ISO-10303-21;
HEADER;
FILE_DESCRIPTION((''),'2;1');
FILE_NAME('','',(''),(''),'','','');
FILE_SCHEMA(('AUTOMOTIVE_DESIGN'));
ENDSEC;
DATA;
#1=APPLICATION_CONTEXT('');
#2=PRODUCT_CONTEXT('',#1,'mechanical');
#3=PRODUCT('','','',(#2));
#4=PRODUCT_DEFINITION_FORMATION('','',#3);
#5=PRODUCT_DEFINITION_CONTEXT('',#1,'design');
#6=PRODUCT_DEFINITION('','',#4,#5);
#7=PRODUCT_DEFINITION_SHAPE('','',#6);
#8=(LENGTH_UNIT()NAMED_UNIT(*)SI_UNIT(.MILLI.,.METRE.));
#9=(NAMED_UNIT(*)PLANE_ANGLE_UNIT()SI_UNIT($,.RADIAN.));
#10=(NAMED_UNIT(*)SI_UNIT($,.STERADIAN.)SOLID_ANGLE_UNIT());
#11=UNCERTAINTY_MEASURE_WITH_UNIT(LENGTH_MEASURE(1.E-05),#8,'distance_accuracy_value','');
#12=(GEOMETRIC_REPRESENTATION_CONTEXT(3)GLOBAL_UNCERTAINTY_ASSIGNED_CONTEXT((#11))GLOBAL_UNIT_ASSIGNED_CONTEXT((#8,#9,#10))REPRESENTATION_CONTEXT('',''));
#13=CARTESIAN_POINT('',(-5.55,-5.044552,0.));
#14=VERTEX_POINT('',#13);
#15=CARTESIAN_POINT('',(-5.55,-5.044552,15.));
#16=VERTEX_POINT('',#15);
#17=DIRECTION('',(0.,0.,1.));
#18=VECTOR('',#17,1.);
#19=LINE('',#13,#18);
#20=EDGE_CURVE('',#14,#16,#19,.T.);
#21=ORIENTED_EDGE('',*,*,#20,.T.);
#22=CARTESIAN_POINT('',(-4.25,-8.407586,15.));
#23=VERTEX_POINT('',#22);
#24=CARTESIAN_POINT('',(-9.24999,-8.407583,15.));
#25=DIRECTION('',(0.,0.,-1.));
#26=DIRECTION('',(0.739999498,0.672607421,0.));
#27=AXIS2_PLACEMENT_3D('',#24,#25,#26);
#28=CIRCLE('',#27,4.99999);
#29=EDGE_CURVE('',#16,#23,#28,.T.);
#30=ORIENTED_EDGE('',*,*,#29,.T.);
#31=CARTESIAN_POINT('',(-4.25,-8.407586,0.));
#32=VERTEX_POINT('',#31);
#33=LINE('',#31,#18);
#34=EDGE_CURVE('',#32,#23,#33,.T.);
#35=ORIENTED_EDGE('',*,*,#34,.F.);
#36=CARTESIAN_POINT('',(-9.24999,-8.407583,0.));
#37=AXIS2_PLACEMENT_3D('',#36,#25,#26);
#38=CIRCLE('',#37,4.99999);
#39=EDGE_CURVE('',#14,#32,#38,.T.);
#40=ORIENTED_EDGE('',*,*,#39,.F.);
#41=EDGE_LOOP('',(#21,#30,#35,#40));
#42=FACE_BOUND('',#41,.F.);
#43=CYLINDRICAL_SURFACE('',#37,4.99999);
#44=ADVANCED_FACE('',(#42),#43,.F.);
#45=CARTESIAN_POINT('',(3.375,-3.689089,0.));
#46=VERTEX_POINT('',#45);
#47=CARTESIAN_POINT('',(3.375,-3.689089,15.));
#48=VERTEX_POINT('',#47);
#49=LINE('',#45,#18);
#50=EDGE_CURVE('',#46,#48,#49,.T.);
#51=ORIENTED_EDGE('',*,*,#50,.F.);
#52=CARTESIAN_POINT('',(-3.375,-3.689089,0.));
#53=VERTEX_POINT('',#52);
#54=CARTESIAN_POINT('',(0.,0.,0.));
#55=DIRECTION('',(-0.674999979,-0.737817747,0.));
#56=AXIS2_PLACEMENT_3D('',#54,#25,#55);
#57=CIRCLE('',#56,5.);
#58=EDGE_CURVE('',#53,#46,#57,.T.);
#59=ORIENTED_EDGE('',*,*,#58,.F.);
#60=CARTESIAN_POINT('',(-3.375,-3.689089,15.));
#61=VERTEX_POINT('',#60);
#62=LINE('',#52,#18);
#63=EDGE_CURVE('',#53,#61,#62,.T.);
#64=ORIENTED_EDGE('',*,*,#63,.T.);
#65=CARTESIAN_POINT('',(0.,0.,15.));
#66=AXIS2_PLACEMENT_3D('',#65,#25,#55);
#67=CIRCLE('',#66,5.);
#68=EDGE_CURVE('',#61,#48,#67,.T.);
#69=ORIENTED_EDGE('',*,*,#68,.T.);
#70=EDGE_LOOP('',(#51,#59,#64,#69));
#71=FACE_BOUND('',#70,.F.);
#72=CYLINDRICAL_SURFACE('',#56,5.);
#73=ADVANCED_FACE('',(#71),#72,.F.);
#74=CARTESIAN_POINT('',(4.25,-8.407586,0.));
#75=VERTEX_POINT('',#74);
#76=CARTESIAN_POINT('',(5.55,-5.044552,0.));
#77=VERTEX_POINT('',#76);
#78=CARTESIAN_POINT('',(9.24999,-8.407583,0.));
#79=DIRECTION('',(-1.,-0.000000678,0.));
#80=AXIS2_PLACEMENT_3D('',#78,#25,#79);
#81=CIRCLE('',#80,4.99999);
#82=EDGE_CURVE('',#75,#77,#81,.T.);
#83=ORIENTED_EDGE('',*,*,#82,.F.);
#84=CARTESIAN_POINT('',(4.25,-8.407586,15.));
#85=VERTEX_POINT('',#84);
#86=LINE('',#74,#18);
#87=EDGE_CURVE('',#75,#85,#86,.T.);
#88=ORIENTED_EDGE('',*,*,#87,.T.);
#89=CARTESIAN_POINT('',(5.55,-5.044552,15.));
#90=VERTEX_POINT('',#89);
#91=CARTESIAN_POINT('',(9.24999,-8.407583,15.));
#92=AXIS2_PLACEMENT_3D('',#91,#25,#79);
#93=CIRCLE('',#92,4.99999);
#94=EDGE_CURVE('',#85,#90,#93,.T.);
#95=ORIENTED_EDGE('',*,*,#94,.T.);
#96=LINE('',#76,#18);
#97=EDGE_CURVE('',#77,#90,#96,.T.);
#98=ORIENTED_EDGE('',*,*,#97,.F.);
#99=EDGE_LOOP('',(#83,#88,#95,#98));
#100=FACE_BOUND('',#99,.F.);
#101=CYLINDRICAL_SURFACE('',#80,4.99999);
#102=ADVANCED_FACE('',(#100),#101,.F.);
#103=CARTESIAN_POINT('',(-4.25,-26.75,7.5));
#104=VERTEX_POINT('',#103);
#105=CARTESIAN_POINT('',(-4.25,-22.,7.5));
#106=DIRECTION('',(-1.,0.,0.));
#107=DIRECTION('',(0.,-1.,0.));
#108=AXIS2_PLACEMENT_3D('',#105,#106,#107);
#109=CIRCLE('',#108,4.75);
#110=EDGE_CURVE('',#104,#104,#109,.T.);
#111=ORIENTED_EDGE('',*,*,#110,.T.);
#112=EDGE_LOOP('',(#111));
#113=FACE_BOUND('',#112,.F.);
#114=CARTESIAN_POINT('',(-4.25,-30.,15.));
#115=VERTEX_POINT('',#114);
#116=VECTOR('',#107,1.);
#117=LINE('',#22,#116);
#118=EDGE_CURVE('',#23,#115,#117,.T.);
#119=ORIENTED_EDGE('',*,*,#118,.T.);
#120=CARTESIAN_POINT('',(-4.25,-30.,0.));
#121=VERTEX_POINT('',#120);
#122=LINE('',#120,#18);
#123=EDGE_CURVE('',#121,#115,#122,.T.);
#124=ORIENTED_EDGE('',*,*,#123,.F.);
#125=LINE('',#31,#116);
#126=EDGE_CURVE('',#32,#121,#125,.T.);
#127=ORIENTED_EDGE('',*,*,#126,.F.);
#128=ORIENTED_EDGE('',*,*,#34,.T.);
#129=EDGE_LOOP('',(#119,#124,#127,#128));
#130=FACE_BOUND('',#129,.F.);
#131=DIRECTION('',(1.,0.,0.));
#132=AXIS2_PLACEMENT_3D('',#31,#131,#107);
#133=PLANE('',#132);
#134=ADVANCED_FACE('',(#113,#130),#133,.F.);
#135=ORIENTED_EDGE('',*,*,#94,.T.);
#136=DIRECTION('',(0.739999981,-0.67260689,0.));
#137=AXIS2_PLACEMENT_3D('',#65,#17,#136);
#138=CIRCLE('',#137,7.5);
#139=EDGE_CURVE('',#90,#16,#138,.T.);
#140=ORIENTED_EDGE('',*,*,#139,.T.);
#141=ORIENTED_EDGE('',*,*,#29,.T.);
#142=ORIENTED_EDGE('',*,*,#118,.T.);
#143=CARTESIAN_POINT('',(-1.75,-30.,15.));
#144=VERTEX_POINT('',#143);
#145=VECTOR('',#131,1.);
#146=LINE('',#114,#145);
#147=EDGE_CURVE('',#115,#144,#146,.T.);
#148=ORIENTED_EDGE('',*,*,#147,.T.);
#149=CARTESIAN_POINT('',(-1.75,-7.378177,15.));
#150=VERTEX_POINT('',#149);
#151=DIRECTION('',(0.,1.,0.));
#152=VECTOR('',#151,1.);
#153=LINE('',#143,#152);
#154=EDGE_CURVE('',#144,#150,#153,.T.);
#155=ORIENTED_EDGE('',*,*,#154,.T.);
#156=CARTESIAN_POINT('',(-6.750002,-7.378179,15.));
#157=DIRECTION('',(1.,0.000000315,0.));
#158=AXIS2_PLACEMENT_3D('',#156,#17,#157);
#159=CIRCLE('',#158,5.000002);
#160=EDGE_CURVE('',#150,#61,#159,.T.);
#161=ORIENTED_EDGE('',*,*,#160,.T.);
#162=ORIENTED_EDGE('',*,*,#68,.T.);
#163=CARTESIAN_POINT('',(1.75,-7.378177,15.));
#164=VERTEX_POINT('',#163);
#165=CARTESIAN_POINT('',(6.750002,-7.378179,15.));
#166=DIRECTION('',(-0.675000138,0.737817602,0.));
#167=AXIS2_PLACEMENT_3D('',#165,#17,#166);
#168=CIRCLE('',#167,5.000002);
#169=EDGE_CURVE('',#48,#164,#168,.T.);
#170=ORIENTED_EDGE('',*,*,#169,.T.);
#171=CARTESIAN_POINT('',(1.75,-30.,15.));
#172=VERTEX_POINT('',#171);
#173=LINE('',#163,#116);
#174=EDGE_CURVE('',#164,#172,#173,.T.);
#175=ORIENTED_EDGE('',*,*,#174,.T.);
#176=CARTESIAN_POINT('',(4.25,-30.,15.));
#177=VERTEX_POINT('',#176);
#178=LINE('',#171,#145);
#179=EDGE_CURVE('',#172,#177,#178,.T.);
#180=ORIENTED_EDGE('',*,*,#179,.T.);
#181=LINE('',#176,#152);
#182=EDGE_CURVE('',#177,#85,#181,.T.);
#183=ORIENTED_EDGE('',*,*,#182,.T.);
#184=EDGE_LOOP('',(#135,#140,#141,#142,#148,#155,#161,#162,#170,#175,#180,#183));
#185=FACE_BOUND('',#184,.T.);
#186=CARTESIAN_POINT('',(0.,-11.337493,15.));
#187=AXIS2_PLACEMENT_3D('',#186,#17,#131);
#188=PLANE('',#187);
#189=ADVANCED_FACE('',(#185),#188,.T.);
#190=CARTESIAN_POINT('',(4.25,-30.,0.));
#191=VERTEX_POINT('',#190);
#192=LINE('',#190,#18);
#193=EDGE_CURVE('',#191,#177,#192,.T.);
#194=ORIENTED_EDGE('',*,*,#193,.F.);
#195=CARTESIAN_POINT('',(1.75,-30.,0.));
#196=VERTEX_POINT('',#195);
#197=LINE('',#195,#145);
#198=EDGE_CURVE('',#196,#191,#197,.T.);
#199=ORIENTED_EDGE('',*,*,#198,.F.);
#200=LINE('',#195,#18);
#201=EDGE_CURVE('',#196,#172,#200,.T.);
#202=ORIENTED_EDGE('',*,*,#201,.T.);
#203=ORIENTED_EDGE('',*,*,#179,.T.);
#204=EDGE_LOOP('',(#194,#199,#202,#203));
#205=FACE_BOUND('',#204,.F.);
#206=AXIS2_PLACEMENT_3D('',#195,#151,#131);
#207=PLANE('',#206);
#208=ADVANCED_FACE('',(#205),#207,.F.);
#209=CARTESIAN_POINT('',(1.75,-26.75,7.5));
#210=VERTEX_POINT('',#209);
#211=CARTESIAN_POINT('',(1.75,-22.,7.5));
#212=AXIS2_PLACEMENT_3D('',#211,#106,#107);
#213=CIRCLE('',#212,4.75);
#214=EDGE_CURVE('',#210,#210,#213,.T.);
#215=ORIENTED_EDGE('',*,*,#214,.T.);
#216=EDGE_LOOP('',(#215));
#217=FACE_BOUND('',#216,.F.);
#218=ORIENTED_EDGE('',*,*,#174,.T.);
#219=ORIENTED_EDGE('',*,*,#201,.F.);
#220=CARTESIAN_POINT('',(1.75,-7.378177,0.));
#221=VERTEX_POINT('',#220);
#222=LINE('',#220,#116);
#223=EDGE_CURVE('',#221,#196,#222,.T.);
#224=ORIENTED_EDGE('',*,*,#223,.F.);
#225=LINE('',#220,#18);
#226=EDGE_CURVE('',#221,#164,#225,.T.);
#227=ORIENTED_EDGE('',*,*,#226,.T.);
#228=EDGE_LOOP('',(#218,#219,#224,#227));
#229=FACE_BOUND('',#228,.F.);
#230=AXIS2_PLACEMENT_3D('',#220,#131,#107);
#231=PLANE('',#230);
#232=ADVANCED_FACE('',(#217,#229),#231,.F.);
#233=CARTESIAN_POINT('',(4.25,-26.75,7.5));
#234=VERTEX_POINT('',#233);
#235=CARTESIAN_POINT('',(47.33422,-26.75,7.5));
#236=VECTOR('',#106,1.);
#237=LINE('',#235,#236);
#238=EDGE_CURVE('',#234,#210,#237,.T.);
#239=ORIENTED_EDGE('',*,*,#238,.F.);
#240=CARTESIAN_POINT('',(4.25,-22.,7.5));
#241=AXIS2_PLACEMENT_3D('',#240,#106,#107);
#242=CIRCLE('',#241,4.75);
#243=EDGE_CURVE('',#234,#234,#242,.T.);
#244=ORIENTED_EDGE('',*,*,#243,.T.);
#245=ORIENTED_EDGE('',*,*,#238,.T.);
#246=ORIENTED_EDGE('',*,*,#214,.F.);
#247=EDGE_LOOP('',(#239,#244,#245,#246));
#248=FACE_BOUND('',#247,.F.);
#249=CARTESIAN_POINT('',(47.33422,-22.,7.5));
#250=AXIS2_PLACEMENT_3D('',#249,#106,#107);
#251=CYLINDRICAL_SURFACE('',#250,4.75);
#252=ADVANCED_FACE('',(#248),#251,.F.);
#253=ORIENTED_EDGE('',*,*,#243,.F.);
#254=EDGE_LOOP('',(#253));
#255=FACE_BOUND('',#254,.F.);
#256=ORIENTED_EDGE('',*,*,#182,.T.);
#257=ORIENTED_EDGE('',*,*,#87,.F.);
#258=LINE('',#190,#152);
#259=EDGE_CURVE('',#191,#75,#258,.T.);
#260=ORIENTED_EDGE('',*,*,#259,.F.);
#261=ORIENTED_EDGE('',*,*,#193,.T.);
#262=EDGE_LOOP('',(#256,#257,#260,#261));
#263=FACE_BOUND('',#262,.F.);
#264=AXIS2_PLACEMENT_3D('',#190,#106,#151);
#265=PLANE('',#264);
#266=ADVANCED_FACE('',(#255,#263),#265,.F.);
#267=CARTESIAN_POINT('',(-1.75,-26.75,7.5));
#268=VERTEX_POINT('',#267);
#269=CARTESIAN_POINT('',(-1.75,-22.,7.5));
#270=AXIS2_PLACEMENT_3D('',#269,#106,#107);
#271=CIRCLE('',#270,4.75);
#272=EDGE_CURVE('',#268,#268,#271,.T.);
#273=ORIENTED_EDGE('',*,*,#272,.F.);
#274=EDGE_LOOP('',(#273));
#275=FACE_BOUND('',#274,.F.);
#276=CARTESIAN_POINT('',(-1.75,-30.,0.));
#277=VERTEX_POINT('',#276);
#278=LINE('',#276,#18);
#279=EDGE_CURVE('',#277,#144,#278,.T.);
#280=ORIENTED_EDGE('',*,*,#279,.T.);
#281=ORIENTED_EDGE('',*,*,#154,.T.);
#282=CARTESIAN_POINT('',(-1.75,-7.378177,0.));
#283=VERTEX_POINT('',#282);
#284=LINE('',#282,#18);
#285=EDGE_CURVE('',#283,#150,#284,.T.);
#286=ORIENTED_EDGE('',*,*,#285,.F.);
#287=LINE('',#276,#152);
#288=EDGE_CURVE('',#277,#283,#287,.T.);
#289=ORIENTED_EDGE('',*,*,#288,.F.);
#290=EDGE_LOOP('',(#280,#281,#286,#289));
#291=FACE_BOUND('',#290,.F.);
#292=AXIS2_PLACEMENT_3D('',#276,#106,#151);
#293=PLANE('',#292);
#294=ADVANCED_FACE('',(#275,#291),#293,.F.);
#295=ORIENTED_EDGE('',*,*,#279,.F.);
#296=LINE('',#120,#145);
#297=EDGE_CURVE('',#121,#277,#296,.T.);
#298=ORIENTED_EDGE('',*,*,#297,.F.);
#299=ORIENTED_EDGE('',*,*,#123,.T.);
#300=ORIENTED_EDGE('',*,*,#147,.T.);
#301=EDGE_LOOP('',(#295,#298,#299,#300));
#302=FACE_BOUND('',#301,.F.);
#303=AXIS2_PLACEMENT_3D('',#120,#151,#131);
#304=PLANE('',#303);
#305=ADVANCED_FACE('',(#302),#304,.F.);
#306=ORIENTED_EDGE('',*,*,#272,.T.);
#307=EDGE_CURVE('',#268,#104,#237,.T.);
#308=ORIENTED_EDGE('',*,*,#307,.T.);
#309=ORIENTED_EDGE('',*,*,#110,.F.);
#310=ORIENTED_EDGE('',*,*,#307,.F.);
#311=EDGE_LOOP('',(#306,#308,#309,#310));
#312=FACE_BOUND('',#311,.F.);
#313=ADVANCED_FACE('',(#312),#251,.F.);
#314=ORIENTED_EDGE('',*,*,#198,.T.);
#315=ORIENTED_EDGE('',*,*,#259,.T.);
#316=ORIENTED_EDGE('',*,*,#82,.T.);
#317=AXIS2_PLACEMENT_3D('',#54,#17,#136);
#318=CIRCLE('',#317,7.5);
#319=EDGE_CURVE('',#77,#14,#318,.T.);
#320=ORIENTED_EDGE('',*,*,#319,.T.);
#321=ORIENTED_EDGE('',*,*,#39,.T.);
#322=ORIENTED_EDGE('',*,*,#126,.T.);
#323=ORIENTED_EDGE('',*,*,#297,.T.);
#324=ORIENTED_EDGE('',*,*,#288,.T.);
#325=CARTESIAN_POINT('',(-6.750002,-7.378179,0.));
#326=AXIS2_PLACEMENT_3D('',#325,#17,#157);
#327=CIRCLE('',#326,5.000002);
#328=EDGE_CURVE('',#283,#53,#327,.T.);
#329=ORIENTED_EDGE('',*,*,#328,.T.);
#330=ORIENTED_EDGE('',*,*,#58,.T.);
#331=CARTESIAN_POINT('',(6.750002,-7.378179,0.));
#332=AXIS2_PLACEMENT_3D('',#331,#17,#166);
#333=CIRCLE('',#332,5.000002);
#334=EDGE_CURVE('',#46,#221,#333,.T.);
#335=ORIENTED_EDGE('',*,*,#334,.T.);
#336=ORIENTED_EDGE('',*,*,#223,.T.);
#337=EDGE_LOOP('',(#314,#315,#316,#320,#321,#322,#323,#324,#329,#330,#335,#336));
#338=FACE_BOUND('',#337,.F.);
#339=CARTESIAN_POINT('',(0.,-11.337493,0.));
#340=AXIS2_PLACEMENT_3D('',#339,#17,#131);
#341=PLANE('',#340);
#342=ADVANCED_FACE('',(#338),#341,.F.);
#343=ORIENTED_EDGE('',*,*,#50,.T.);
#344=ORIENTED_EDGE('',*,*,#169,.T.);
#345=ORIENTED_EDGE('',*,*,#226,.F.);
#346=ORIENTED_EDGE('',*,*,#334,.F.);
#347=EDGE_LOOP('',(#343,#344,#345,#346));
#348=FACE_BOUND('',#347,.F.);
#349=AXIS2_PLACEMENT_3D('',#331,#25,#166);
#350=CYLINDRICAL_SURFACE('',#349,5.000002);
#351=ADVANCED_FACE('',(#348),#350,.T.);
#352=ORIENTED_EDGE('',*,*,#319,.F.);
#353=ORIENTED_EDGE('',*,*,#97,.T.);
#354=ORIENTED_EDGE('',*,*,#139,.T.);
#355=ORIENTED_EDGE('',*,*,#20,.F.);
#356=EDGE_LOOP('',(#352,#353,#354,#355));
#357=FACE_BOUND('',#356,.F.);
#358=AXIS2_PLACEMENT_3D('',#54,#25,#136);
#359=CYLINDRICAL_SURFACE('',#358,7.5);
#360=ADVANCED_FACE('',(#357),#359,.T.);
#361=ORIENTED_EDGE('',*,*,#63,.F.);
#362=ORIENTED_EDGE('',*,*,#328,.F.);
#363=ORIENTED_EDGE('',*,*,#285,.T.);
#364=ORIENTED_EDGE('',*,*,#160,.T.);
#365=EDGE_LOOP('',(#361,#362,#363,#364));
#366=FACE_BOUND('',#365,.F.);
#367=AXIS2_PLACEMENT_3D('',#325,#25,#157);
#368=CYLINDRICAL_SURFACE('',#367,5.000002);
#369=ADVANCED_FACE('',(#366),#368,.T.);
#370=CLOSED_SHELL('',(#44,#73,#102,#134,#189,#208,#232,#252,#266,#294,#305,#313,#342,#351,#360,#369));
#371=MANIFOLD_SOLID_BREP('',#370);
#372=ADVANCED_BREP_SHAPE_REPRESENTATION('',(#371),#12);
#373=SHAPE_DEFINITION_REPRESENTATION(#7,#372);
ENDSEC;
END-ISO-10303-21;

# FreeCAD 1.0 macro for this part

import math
import FreeCAD as App
import Part
import Sketcher

V = App.Vector
Q = App.Units.Quantity

doc = App.newDocument("Part")
body = doc.addObject("PartDesign::Body", "Body")

# Sketch on XY plane
sketch1 = body.newObject("Sketcher::SketchObject", "Sketch")
sketch1.AttachmentSupport = (doc.getObject("XY_Plane"), [""])
sketch1.MapMode = "FlatFace"
sketch1.addGeometry(Part.ArcOfCircle(Part.Circle(V(0, 0, 0), V(0, 0, 1), 5), math.radians(-47.545851), math.radians(227.545851)), False)
sketch1.addGeometry(Part.ArcOfCircle(Part.Circle(V(6.750002, -7.378179, 0), V(0, 0, 1), 5.000002), math.radians(132.454161), math.radians(179.999982)), False)
sketch1.addGeometry(Part.LineSegment(V(1.75, -7.378177, 0), V(1.75, -30, 0)), False)
sketch1.addGeometry(Part.LineSegment(V(1.75, -30, 0), V(4.25, -30, 0)), False)
sketch1.addGeometry(Part.LineSegment(V(4.25, -30, 0), V(4.25, -8.407586, 0)), False)
sketch1.addGeometry(Part.ArcOfCircle(Part.Circle(V(9.24999, -8.407583, 0), V(0, 0, 1), 4.99999), math.radians(137.731373), math.radians(180.000039)), False)
sketch1.addGeometry(Part.ArcOfCircle(Part.Circle(V(0, 0, 0), V(0, 0, 1), 7.5), math.radians(-42.268586), math.radians(222.268586)), False)
sketch1.addGeometry(Part.ArcOfCircle(Part.Circle(V(-9.24999, -8.407583, 0), V(0, 0, 1), 4.99999), math.radians(-0.000039), math.radians(42.268627)), False)
sketch1.addGeometry(Part.LineSegment(V(-4.25, -8.407586, 0), V(-4.25, -30, 0)), False)
sketch1.addGeometry(Part.LineSegment(V(-4.25, -30, 0), V(-1.75, -30, 0)), False)
sketch1.addGeometry(Part.LineSegment(V(-1.75, -30, 0), V(-1.75, -7.378177, 0)), False)
sketch1.addGeometry(Part.ArcOfCircle(Part.Circle(V(-6.750002, -7.378179, 0), V(0, 0, 1), 5.000002), math.radians(0.000018), math.radians(47.545839)), False)
sketch1.addConstraint(Sketcher.Constraint("Tangent", 0, 1, 1, 1))
sketch1.addConstraint(Sketcher.Constraint("Tangent", 1, 2, 2, 1))
sketch1.addConstraint(Sketcher.Constraint("Coincident", 2, 2, 3, 1))
sketch1.addConstraint(Sketcher.Constraint("Coincident", 3, 2, 4, 1))
sketch1.addConstraint(Sketcher.Constraint("Tangent", 4, 2, 5, 2))
sketch1.addConstraint(Sketcher.Constraint("Tangent", 5, 1, 6, 1))
sketch1.addConstraint(Sketcher.Constraint("Tangent", 6, 2, 7, 2))
sketch1.addConstraint(Sketcher.Constraint("Tangent", 7, 1, 8, 1))
sketch1.addConstraint(Sketcher.Constraint("Coincident", 8, 2, 9, 1))
sketch1.addConstraint(Sketcher.Constraint("Coincident", 9, 2, 10, 1))
sketch1.addConstraint(Sketcher.Constraint("Tangent", 10, 2, 11, 1))
sketch1.addConstraint(Sketcher.Constraint("Tangent", 11, 2, 0, 2))
sketch1.addConstraint(Sketcher.Constraint("Vertical", 2))
sketch1.addConstraint(Sketcher.Constraint("Horizontal", 3))
sketch1.addConstraint(Sketcher.Constraint("Vertical", 4))
sketch1.addConstraint(Sketcher.Constraint("Vertical", 8))
sketch1.addConstraint(Sketcher.Constraint("Horizontal", 9))
sketch1.addConstraint(Sketcher.Constraint("Vertical", 10))
sketch1.addConstraint(Sketcher.Constraint("Coincident", 0, 3, -1, 1))
sketch1.addConstraint(Sketcher.Constraint("Coincident", 6, 3, -1, 1))
sketch1.addConstraint(Sketcher.Constraint("Equal", 0, 1))
sketch1.addConstraint(Sketcher.Constraint("Equal", 5, 7))
sketch1.addConstraint(Sketcher.Constraint("Equal", 1, 11))
sketch1.addConstraint(Sketcher.Constraint("Symmetric", 3, 2, 8, 2, -2))
sketch1.addConstraint(Sketcher.Constraint("Horizontal", 1, 3, 11, 3))
sketch1.addConstraint(Sketcher.Constraint("Radius", 0, Q("5 mm")))
sketch1.addConstraint(Sketcher.Constraint("Radius", 6, Q("7.5 mm")))
sketch1.addConstraint(Sketcher.Constraint("DistanceX", 3, 1, 3, 2, Q("2.5 mm")))
sketch1.addConstraint(Sketcher.Constraint("DistanceY", 2, 2, -1, 1, Q("30 mm")))
sketch1.addConstraint(Sketcher.Constraint("DistanceX", 7, 1, 1, 2, Q("6 mm")))
sketch1.addConstraint(Sketcher.Constraint("DistanceX", 4, 2, 5, 1, Q("1.3 mm")))
pad1 = body.newObject("PartDesign::Pad", "Pad")
pad1.Profile = sketch1
pad1.Length = 15

# Sketch on YZ plane
sketch2 = body.newObject("Sketcher::SketchObject", "Sketch001")
sketch2.AttachmentSupport = (doc.getObject("YZ_Plane"), [""])
sketch2.MapMode = "FlatFace"
sketch2.AttachmentOffset = App.Placement(V(0, 0, 4.25), App.Rotation())
sketch2.addGeometry(Part.Circle(V(-22, 7.5, 0), V(0, 0, 1), 4.75), False)
sketch2.addConstraint(Sketcher.Constraint("Diameter", 0, Q("9.5 mm")))
sketch2.addConstraint(Sketcher.Constraint("DistanceX", 0, 3, -1, 1, Q("22 mm")))
sketch2.addConstraint(Sketcher.Constraint("DistanceY", -1, 1, 0, 3, Q("7.5 mm")))
doc.recompute()
hole = body.newObject("PartDesign::Hole", "Hole")
hole.Profile = sketch2
hole.ThreadType = "None"
hole.Diameter = 9.5
hole.DepthType = "ThroughAll"

doc.recompute()
